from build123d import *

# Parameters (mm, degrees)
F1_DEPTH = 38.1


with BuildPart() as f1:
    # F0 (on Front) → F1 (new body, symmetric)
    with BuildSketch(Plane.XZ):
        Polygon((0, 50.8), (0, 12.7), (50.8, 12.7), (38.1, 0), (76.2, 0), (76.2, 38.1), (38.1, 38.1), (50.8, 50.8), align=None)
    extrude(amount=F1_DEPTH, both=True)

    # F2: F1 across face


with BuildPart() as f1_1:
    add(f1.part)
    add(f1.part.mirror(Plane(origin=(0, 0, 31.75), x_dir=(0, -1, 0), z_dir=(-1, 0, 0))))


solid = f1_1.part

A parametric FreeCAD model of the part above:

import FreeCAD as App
import Part
import Sketcher
from FreeCAD import Vector
Q = App.Units.Quantity


def add_polygon(sketch, points):
    """Adds a closed chain of lines whose ends are joined by coincident constraints."""
    first, n = sketch.GeometryCount, len(points)
    for a, b in zip(points, points[1:] + points[:1]):
        sketch.addGeometry(Part.LineSegment(App.Vector(*a, 0), App.Vector(*b, 0)), False)
    for i in range(n):
        sketch.addConstraint(Sketcher.Constraint("Coincident", first + i, 2, first + (i + 1) % n, 1))

doc = App.newDocument("Part")
body = doc.addObject("PartDesign::Body", "Body")

sketch1 = body.newObject("Sketcher::SketchObject", "Sketch")
sketch1.AttachmentSupport = (doc.getObject("XZ_Plane"), [""])
sketch1.MapMode = "FlatFace"
add_polygon(sketch1, [(0, 51), (0, 13), (51, 13), (38, 0), (76, 0), (76, 38), (38, 38), (51, 51)])
sketch1.addConstraint([
    Sketcher.Constraint("Vertical", 0),
    Sketcher.Constraint("Horizontal", 1),
    Sketcher.Constraint("Horizontal", 3),
    Sketcher.Constraint("Vertical", 4),
    Sketcher.Constraint("Horizontal", 5),
    Sketcher.Constraint("Horizontal", 7),
    Sketcher.Constraint("PointOnObject", 0, 2, -2),
    Sketcher.Constraint("PointOnObject", 2, 2, -1),
    Sketcher.Constraint("Parallel", 2, 6),
    Sketcher.Constraint("Vertical", 2, 2, 5, 2),
    Sketcher.Constraint("Vertical", 1, 2, 6, 2),
    Sketcher.Constraint("Equal", 5, 0),
    Sketcher.Constraint("DistanceX", 1, 1, 1, 2, Q("2 in")),
    Sketcher.Constraint("DistanceX", 3, 1, 3, 2, Q("1.5 in")),
    Sketcher.Constraint("DistanceX", -1, 1, 3, 2, Q("3 in")),
    Sketcher.Constraint("DistanceY", -1, 1, 6, 2, Q("2 in")),
])
pad1 = body.newObject("PartDesign::Pad", "Pad")
pad1.Profile = sketch1
pad1.Length = Q("3 in")
pad1.Midplane = True
body2 = doc.addObject("PartDesign::Body", "Body001")
doc.recompute()

body2.BaseFeature = body
doc.recompute()

mirroring = doc.addObject("Part::Mirroring", "Mirroring")
mirroring.Source = body
mirroring.Base = Vector(0, 0, 31.75)
mirroring.Normal = Vector(-1, 0, 0)
body3 = doc.addObject("PartDesign::Body", "Body002")
body3.BaseFeature = mirroring
boolean = body2.newObject("PartDesign::Boolean", "Boolean")
boolean.Type = "Fuse"
boolean.addObjects([body3])
doc.recompute()
mirroring.Visibility = False

doc.recompute()
